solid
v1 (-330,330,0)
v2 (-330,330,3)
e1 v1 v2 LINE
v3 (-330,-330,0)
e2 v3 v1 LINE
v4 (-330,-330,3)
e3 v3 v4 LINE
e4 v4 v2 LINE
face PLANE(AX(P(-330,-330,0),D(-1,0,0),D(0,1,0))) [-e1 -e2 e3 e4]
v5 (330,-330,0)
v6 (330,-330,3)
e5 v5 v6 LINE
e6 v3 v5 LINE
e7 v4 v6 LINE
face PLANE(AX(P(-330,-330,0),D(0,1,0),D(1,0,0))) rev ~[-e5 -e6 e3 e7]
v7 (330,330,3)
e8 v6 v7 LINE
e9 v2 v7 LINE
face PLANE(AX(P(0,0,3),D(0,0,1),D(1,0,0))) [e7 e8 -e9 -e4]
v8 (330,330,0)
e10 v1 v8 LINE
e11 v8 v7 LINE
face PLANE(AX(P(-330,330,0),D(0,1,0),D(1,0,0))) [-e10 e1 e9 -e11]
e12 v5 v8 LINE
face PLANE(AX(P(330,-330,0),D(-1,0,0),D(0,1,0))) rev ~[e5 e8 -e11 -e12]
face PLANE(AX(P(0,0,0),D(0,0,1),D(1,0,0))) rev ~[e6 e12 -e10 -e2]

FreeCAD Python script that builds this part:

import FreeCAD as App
import Part
import Sketcher
Q = App.Units.Quantity

doc = App.newDocument("Part")
body = doc.addObject("PartDesign::Body", "Body")

# Sketch on XY plane
sketch1 = body.newObject("Sketcher::SketchObject", "Sketch")
sketch1.AttachmentSupport = (doc.getObject("XY_Plane"), [""])
sketch1.MapMode = "FlatFace"
sketch1.addGeometry(Part.LineSegment(App.Vector(-330, 330, 0), App.Vector(-330, -330, 0)), False)
sketch1.addGeometry(Part.LineSegment(App.Vector(-330, -330, 0), App.Vector(330, -330, 0)), False)
sketch1.addGeometry(Part.LineSegment(App.Vector(330, -330, 0), App.Vector(330, 330, 0)), False)
sketch1.addGeometry(Part.LineSegment(App.Vector(330, 330, 0), App.Vector(-330, 330, 0)), False)
sketch1.addConstraint(Sketcher.Constraint("Coincident", 0, 2, 1, 1))
sketch1.addConstraint(Sketcher.Constraint("Coincident", 1, 2, 2, 1))
sketch1.addConstraint(Sketcher.Constraint("Coincident", 2, 2, 3, 1))
sketch1.addConstraint(Sketcher.Constraint("Coincident", 3, 2, 0, 1))
sketch1.addConstraint(Sketcher.Constraint("Vertical", 0))
sketch1.addConstraint(Sketcher.Constraint("Horizontal", 1))
sketch1.addConstraint(Sketcher.Constraint("Vertical", 2))
sketch1.addConstraint(Sketcher.Constraint("Horizontal", 3))
sketch1.addConstraint(Sketcher.Constraint("Symmetric", 0, 2, 2, 2, -1, 1))
sketch1.addConstraint(Sketcher.Constraint("Equal", 3, 0))
sketch1.addConstraint(Sketcher.Constraint("DistanceX", 1, 1, 1, 2, Q("660 mm")))
pad1 = body.newObject("PartDesign::Pad", "Pad")
pad1.Profile = sketch1
pad1.Length = 3

doc.recompute()
